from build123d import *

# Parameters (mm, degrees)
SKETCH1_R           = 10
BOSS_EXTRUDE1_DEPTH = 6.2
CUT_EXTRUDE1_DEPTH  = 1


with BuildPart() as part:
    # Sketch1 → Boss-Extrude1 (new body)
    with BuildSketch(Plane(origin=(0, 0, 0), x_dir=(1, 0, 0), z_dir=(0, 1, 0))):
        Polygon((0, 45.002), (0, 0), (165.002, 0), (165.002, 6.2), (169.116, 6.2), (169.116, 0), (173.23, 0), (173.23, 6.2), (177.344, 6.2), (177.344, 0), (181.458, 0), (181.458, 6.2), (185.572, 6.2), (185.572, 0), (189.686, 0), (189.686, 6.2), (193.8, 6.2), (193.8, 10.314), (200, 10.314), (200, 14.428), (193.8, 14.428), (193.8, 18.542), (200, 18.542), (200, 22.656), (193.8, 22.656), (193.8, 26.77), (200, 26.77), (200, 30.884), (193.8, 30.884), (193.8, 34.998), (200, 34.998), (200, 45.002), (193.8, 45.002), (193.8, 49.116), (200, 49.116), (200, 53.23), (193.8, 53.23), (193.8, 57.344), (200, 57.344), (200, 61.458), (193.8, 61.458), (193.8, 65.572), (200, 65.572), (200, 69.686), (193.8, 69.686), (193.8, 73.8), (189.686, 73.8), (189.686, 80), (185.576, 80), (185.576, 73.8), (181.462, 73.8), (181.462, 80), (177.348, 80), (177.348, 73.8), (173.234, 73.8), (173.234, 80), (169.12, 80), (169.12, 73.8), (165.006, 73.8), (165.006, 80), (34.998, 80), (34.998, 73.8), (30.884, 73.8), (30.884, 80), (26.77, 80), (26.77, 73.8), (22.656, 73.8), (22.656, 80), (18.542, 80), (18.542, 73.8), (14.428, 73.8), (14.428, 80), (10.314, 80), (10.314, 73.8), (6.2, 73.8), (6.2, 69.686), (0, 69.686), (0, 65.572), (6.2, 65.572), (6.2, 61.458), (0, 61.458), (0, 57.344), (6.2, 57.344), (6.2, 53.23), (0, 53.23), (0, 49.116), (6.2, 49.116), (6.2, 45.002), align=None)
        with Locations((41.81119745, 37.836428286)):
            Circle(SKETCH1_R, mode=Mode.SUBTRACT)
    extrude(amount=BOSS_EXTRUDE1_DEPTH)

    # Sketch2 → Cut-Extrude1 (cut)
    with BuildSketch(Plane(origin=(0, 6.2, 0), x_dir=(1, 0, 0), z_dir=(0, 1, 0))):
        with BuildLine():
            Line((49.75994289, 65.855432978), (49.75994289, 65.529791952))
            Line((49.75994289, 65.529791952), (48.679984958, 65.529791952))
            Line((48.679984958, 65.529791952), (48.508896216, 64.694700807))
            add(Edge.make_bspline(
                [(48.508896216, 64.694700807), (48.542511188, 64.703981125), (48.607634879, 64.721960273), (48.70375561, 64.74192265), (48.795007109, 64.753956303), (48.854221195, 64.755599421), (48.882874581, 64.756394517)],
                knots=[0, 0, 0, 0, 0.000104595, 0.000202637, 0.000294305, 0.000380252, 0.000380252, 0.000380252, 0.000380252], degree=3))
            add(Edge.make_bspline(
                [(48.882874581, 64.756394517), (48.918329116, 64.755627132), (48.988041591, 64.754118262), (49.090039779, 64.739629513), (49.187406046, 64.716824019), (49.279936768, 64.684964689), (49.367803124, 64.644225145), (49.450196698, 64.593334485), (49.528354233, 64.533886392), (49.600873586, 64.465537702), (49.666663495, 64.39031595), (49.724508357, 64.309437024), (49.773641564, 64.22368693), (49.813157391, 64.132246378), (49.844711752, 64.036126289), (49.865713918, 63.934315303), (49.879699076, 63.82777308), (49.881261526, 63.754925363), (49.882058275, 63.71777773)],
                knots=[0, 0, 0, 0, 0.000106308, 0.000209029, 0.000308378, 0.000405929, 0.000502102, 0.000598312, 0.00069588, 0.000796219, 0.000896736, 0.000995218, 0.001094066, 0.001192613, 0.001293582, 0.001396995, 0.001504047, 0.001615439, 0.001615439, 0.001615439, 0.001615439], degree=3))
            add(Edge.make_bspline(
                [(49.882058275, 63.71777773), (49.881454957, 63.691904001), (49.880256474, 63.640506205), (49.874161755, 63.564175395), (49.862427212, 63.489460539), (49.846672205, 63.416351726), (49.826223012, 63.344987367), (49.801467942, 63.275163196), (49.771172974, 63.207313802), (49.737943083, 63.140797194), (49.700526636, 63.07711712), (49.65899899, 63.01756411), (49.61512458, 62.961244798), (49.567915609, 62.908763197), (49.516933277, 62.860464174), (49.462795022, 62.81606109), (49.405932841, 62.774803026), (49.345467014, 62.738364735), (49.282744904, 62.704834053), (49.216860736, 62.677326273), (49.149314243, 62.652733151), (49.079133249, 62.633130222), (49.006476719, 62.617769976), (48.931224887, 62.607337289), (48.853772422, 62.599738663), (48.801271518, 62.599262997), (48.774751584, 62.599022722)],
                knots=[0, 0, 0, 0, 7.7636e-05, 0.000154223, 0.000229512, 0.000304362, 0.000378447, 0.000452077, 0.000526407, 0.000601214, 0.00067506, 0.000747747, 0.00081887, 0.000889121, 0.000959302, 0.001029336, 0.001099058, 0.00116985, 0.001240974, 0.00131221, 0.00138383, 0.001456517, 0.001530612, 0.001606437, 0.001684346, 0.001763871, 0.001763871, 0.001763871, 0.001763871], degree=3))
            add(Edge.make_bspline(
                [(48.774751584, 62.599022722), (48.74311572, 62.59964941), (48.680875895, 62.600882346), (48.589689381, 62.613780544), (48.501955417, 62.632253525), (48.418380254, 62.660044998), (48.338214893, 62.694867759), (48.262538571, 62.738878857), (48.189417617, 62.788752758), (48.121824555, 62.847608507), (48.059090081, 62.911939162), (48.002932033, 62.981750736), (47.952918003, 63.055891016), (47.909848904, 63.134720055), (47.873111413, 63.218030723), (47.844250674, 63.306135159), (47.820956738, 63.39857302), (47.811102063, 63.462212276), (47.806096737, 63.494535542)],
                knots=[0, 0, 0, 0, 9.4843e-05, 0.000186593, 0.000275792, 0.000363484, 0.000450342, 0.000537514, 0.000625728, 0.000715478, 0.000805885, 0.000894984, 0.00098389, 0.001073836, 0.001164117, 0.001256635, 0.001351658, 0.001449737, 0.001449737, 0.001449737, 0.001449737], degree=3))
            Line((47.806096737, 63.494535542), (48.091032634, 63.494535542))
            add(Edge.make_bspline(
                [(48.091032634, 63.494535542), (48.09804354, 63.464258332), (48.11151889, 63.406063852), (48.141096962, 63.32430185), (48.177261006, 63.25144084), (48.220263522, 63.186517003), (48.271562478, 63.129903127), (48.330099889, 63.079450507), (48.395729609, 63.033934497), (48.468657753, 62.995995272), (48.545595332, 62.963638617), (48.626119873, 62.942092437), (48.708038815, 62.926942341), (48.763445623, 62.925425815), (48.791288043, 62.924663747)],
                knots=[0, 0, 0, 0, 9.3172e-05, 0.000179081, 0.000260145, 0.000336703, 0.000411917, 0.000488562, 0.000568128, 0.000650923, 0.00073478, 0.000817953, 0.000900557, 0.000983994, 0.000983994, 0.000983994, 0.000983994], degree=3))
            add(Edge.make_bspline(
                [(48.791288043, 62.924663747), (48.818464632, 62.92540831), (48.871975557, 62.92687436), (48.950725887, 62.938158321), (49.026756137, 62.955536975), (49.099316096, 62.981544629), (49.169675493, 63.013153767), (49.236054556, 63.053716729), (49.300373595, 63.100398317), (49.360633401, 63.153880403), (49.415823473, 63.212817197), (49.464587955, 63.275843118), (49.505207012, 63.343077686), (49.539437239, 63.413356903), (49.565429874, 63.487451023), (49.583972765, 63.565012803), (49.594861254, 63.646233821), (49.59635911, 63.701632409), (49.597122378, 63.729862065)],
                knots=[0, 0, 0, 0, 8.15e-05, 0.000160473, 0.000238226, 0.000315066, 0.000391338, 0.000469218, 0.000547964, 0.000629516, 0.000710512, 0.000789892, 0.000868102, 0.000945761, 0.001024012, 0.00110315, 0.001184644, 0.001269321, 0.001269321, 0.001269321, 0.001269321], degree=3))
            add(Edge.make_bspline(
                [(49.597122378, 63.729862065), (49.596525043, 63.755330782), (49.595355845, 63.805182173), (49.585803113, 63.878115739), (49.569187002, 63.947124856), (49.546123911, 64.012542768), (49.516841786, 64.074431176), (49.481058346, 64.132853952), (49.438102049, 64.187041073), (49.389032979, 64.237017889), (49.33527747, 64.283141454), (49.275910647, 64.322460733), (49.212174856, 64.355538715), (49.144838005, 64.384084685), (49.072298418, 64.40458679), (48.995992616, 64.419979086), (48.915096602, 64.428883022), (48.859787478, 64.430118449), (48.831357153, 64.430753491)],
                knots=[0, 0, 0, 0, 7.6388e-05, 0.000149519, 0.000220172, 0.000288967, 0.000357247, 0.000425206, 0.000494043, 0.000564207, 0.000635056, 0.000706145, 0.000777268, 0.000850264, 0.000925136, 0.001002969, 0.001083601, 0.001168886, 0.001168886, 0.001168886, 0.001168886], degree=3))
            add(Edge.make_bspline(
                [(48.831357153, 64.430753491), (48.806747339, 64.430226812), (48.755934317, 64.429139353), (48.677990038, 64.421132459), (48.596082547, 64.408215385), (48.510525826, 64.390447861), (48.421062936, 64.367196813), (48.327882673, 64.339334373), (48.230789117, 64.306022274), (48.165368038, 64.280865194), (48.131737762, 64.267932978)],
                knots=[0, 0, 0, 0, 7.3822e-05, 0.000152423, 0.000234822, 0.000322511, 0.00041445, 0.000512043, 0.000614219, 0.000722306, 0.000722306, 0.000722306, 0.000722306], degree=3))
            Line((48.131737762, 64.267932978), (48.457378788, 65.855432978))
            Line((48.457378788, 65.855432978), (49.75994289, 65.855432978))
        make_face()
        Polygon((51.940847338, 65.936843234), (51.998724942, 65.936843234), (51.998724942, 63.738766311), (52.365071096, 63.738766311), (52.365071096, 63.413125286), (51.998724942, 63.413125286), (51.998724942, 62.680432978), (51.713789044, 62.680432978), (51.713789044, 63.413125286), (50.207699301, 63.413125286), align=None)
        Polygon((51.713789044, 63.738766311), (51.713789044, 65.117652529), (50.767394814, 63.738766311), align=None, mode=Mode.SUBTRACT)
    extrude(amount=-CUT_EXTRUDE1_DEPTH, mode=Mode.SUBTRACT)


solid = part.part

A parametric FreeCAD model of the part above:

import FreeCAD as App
import Part
import Sketcher
from FreeCAD import Vector
Q = App.Units.Quantity

doc = App.newDocument("Part")
body = doc.addObject("PartDesign::Body", "Body")

# Sketch on XZ plane
sketch1 = doc.addObject("Sketcher::SketchObject", "Sketch")
body.addObject(sketch1)
sketch1.AttachmentSupport = (doc.XZ_Plane, [""])
sketch1.MapMode = "FlatFace"
sketch1.addGeometry(Part.LineSegment(Vector(0, -45.002, 0), Vector(0, 0, 0)), False)
sketch1.addGeometry(Part.LineSegment(Vector(0, 0, 0), Vector(165.002, 0, 0)), False)
sketch1.addGeometry(Part.LineSegment(Vector(165.002, 0, 0), Vector(165.002, -6.2, 0)), False)
sketch1.addGeometry(Part.LineSegment(Vector(165.002, -6.2, 0), Vector(169.116, -6.2, 0)), False)
sketch1.addGeometry(Part.LineSegment(Vector(169.116, -6.2, 0), Vector(169.116, 0, 0)), False)
sketch1.addGeometry(Part.LineSegment(Vector(169.116, 0, 0), Vector(173.23, 0, 0)), False)
sketch1.addGeometry(Part.LineSegment(Vector(173.23, 0, 0), Vector(173.23, -6.2, 0)), False)
sketch1.addGeometry(Part.LineSegment(Vector(173.23, -6.2, 0), Vector(177.344, -6.2, 0)), False)
sketch1.addGeometry(Part.LineSegment(Vector(177.344, -6.2, 0), Vector(177.344, 0, 0)), False)
sketch1.addGeometry(Part.LineSegment(Vector(177.344, 0, 0), Vector(181.458, 0, 0)), False)
sketch1.addGeometry(Part.LineSegment(Vector(181.458, 0, 0), Vector(181.458, -6.2, 0)), False)
sketch1.addGeometry(Part.LineSegment(Vector(181.458, -6.2, 0), Vector(185.572, -6.2, 0)), False)
sketch1.addGeometry(Part.LineSegment(Vector(185.572, -6.2, 0), Vector(185.572, 0, 0)), False)
sketch1.addGeometry(Part.LineSegment(Vector(185.572, 0, 0), Vector(189.686, 0, 0)), False)
sketch1.addGeometry(Part.LineSegment(Vector(189.686, 0, 0), Vector(189.686, -6.2, 0)), False)
sketch1.addGeometry(Part.LineSegment(Vector(189.686, -6.2, 0), Vector(193.8, -6.2, 0)), False)
sketch1.addGeometry(Part.LineSegment(Vector(193.8, -6.2, 0), Vector(193.8, -10.314, 0)), False)
sketch1.addGeometry(Part.LineSegment(Vector(193.8, -10.314, 0), Vector(200, -10.314, 0)), False)
sketch1.addGeometry(Part.LineSegment(Vector(200, -10.314, 0), Vector(200, -14.428, 0)), False)
sketch1.addGeometry(Part.LineSegment(Vector(200, -14.428, 0), Vector(193.8, -14.428, 0)), False)
sketch1.addGeometry(Part.LineSegment(Vector(193.8, -14.428, 0), Vector(193.8, -18.542, 0)), False)
sketch1.addGeometry(Part.LineSegment(Vector(193.8, -18.542, 0), Vector(200, -18.542, 0)), False)
sketch1.addGeometry(Part.LineSegment(Vector(200, -18.542, 0), Vector(200, -22.656, 0)), False)
sketch1.addGeometry(Part.LineSegment(Vector(200, -22.656, 0), Vector(193.8, -22.656, 0)), False)
sketch1.addGeometry(Part.LineSegment(Vector(193.8, -22.656, 0), Vector(193.8, -26.77, 0)), False)
sketch1.addGeometry(Part.LineSegment(Vector(193.8, -26.77, 0), Vector(200, -26.77, 0)), False)
sketch1.addGeometry(Part.LineSegment(Vector(200, -26.77, 0), Vector(200, -30.884, 0)), False)
sketch1.addGeometry(Part.LineSegment(Vector(200, -30.884, 0), Vector(193.8, -30.884, 0)), False)
sketch1.addGeometry(Part.LineSegment(Vector(193.8, -30.884, 0), Vector(193.8, -34.998, 0)), False)
sketch1.addGeometry(Part.LineSegment(Vector(193.8, -34.998, 0), Vector(200, -34.998, 0)), False)
sketch1.addGeometry(Part.LineSegment(Vector(200, -34.998, 0), Vector(200, -45.002, 0)), False)
sketch1.addGeometry(Part.LineSegment(Vector(200, -45.002, 0), Vector(193.8, -45.002, 0)), False)
sketch1.addGeometry(Part.LineSegment(Vector(193.8, -45.002, 0), Vector(193.8, -49.116, 0)), False)
sketch1.addGeometry(Part.LineSegment(Vector(193.8, -49.116, 0), Vector(200, -49.116, 0)), False)
sketch1.addGeometry(Part.LineSegment(Vector(200, -49.116, 0), Vector(200, -53.23, 0)), False)
sketch1.addGeometry(Part.LineSegment(Vector(200, -53.23, 0), Vector(193.8, -53.23, 0)), False)
sketch1.addGeometry(Part.LineSegment(Vector(193.8, -53.23, 0), Vector(193.8, -57.344, 0)), False)
sketch1.addGeometry(Part.LineSegment(Vector(193.8, -57.344, 0), Vector(200, -57.344, 0)), False)
sketch1.addGeometry(Part.LineSegment(Vector(200, -57.344, 0), Vector(200, -61.458, 0)), False)
sketch1.addGeometry(Part.LineSegment(Vector(200, -61.458, 0), Vector(193.8, -61.458, 0)), False)
sketch1.addGeometry(Part.LineSegment(Vector(193.8, -61.458, 0), Vector(193.8, -65.572, 0)), False)
sketch1.addGeometry(Part.LineSegment(Vector(193.8, -65.572, 0), Vector(200, -65.572, 0)), False)
sketch1.addGeometry(Part.LineSegment(Vector(200, -65.572, 0), Vector(200, -69.686, 0)), False)
sketch1.addGeometry(Part.LineSegment(Vector(200, -69.686, 0), Vector(193.8, -69.686, 0)), False)
sketch1.addGeometry(Part.LineSegment(Vector(193.8, -69.686, 0), Vector(193.8, -73.8, 0)), False)
sketch1.addGeometry(Part.LineSegment(Vector(193.8, -73.8, 0), Vector(189.686, -73.8, 0)), False)
sketch1.addGeometry(Part.LineSegment(Vector(189.686, -73.8, 0), Vector(189.686, -80, 0)), False)
sketch1.addGeometry(Part.LineSegment(Vector(189.686, -80, 0), Vector(185.576, -80, 0)), False)
sketch1.addGeometry(Part.LineSegment(Vector(185.576, -80, 0), Vector(185.576, -73.8, 0)), False)
sketch1.addGeometry(Part.LineSegment(Vector(185.576, -73.8, 0), Vector(181.462, -73.8, 0)), False)
sketch1.addGeometry(Part.LineSegment(Vector(181.462, -73.8, 0), Vector(181.462, -80, 0)), False)
sketch1.addGeometry(Part.LineSegment(Vector(181.462, -80, 0), Vector(177.348, -80, 0)), False)
sketch1.addGeometry(Part.LineSegment(Vector(177.348, -80, 0), Vector(177.348, -73.8, 0)), False)
sketch1.addGeometry(Part.LineSegment(Vector(177.348, -73.8, 0), Vector(173.234, -73.8, 0)), False)
sketch1.addGeometry(Part.LineSegment(Vector(173.234, -73.8, 0), Vector(173.234, -80, 0)), False)
sketch1.addGeometry(Part.LineSegment(Vector(173.234, -80, 0), Vector(169.12, -80, 0)), False)
sketch1.addGeometry(Part.LineSegment(Vector(169.12, -80, 0), Vector(169.12, -73.8, 0)), False)
sketch1.addGeometry(Part.LineSegment(Vector(169.12, -73.8, 0), Vector(165.006, -73.8, 0)), False)
sketch1.addGeometry(Part.LineSegment(Vector(165.006, -73.8, 0), Vector(165.006, -80, 0)), False)
sketch1.addGeometry(Part.LineSegment(Vector(165.006, -80, 0), Vector(34.998, -80, 0)), False)
sketch1.addGeometry(Part.LineSegment(Vector(34.998, -80, 0), Vector(34.998, -73.8, 0)), False)
sketch1.addGeometry(Part.LineSegment(Vector(34.998, -73.8, 0), Vector(30.884, -73.8, 0)), False)
sketch1.addGeometry(Part.LineSegment(Vector(30.884, -73.8, 0), Vector(30.884, -80, 0)), False)
sketch1.addGeometry(Part.LineSegment(Vector(30.884, -80, 0), Vector(26.77, -80, 0)), False)
sketch1.addGeometry(Part.LineSegment(Vector(26.77, -80, 0), Vector(26.77, -73.8, 0)), False)
sketch1.addGeometry(Part.LineSegment(Vector(26.77, -73.8, 0), Vector(22.656, -73.8, 0)), False)
sketch1.addGeometry(Part.LineSegment(Vector(22.656, -73.8, 0), Vector(22.656, -80, 0)), False)
sketch1.addGeometry(Part.LineSegment(Vector(22.656, -80, 0), Vector(18.542, -80, 0)), False)
sketch1.addGeometry(Part.LineSegment(Vector(18.542, -80, 0), Vector(18.542, -73.8, 0)), False)
sketch1.addGeometry(Part.LineSegment(Vector(18.542, -73.8, 0), Vector(14.428, -73.8, 0)), False)
sketch1.addGeometry(Part.LineSegment(Vector(14.428, -73.8, 0), Vector(14.428, -80, 0)), False)
sketch1.addGeometry(Part.LineSegment(Vector(14.428, -80, 0), Vector(10.314, -80, 0)), False)
sketch1.addGeometry(Part.LineSegment(Vector(10.314, -80, 0), Vector(10.314, -73.8, 0)), False)
sketch1.addGeometry(Part.LineSegment(Vector(10.314, -73.8, 0), Vector(6.2, -73.8, 0)), False)
sketch1.addGeometry(Part.LineSegment(Vector(6.2, -73.8, 0), Vector(6.2, -69.686, 0)), False)
sketch1.addGeometry(Part.LineSegment(Vector(6.2, -69.686, 0), Vector(0, -69.686, 0)), False)
sketch1.addGeometry(Part.LineSegment(Vector(0, -69.686, 0), Vector(0, -65.572, 0)), False)
sketch1.addGeometry(Part.LineSegment(Vector(0, -65.572, 0), Vector(6.2, -65.572, 0)), False)
sketch1.addGeometry(Part.LineSegment(Vector(6.2, -65.572, 0), Vector(6.2, -61.458, 0)), False)
sketch1.addGeometry(Part.LineSegment(Vector(6.2, -61.458, 0), Vector(0, -61.458, 0)), False)
sketch1.addGeometry(Part.LineSegment(Vector(0, -61.458, 0), Vector(0, -57.344, 0)), False)
sketch1.addGeometry(Part.LineSegment(Vector(0, -57.344, 0), Vector(6.2, -57.344, 0)), False)
sketch1.addGeometry(Part.LineSegment(Vector(6.2, -57.344, 0), Vector(6.2, -53.23, 0)), False)
sketch1.addGeometry(Part.LineSegment(Vector(6.2, -53.23, 0), Vector(0, -53.23, 0)), False)
sketch1.addGeometry(Part.LineSegment(Vector(0, -53.23, 0), Vector(0, -49.116, 0)), False)
sketch1.addGeometry(Part.LineSegment(Vector(0, -49.116, 0), Vector(6.2, -49.116, 0)), False)
sketch1.addGeometry(Part.LineSegment(Vector(6.2, -49.116, 0), Vector(6.2, -45.002, 0)), False)
sketch1.addGeometry(Part.LineSegment(Vector(6.2, -45.002, 0), Vector(0, -45.002, 0)), False)
sketch1.addGeometry(Part.Circle(Vector(41.811197, -37.836428, 0), Vector(0, 0, 1), 10), False)
sketch1.addConstraint(Sketcher.Constraint("Coincident", 0, 2, 1, 1))
sketch1.addConstraint(Sketcher.Constraint("Coincident", 1, 2, 2, 1))
sketch1.addConstraint(Sketcher.Constraint("Coincident", 2, 2, 3, 1))
sketch1.addConstraint(Sketcher.Constraint("Coincident", 3, 2, 4, 1))
sketch1.addConstraint(Sketcher.Constraint("Coincident", 4, 2, 5, 1))
sketch1.addConstraint(Sketcher.Constraint("Coincident", 5, 2, 6, 1))
sketch1.addConstraint(Sketcher.Constraint("Coincident", 6, 2, 7, 1))
sketch1.addConstraint(Sketcher.Constraint("Coincident", 7, 2, 8, 1))
sketch1.addConstraint(Sketcher.Constraint("Coincident", 8, 2, 9, 1))
sketch1.addConstraint(Sketcher.Constraint("Coincident", 9, 2, 10, 1))
sketch1.addConstraint(Sketcher.Constraint("Coincident", 10, 2, 11, 1))
sketch1.addConstraint(Sketcher.Constraint("Coincident", 11, 2, 12, 1))
sketch1.addConstraint(Sketcher.Constraint("Coincident", 12, 2, 13, 1))
sketch1.addConstraint(Sketcher.Constraint("Coincident", 13, 2, 14, 1))
sketch1.addConstraint(Sketcher.Constraint("Coincident", 14, 2, 15, 1))
sketch1.addConstraint(Sketcher.Constraint("Coincident", 15, 2, 16, 1))
sketch1.addConstraint(Sketcher.Constraint("Coincident", 16, 2, 17, 1))
sketch1.addConstraint(Sketcher.Constraint("Coincident", 17, 2, 18, 1))
sketch1.addConstraint(Sketcher.Constraint("Coincident", 18, 2, 19, 1))
sketch1.addConstraint(Sketcher.Constraint("Coincident", 19, 2, 20, 1))
sketch1.addConstraint(Sketcher.Constraint("Coincident", 20, 2, 21, 1))
sketch1.addConstraint(Sketcher.Constraint("Coincident", 21, 2, 22, 1))
sketch1.addConstraint(Sketcher.Constraint("Coincident", 22, 2, 23, 1))
sketch1.addConstraint(Sketcher.Constraint("Coincident", 23, 2, 24, 1))
sketch1.addConstraint(Sketcher.Constraint("Coincident", 24, 2, 25, 1))
sketch1.addConstraint(Sketcher.Constraint("Coincident", 25, 2, 26, 1))
sketch1.addConstraint(Sketcher.Constraint("Coincident", 26, 2, 27, 1))
sketch1.addConstraint(Sketcher.Constraint("Coincident", 27, 2, 28, 1))
sketch1.addConstraint(Sketcher.Constraint("Coincident", 28, 2, 29, 1))
sketch1.addConstraint(Sketcher.Constraint("Coincident", 29, 2, 30, 1))
sketch1.addConstraint(Sketcher.Constraint("Coincident", 30, 2, 31, 1))
sketch1.addConstraint(Sketcher.Constraint("Coincident", 31, 2, 32, 1))
sketch1.addConstraint(Sketcher.Constraint("Coincident", 32, 2, 33, 1))
sketch1.addConstraint(Sketcher.Constraint("Coincident", 33, 2, 34, 1))
sketch1.addConstraint(Sketcher.Constraint("Coincident", 34, 2, 35, 1))
sketch1.addConstraint(Sketcher.Constraint("Coincident", 35, 2, 36, 1))
sketch1.addConstraint(Sketcher.Constraint("Coincident", 36, 2, 37, 1))
sketch1.addConstraint(Sketcher.Constraint("Coincident", 37, 2, 38, 1))
sketch1.addConstraint(Sketcher.Constraint("Coincident", 38, 2, 39, 1))
sketch1.addConstraint(Sketcher.Constraint("Coincident", 39, 2, 40, 1))
sketch1.addConstraint(Sketcher.Constraint("Coincident", 40, 2, 41, 1))
sketch1.addConstraint(Sketcher.Constraint("Coincident", 41, 2, 42, 1))
sketch1.addConstraint(Sketcher.Constraint("Coincident", 42, 2, 43, 1))
sketch1.addConstraint(Sketcher.Constraint("Coincident", 43, 2, 44, 1))
sketch1.addConstraint(Sketcher.Constraint("Coincident", 44, 2, 45, 1))
sketch1.addConstraint(Sketcher.Constraint("Coincident", 45, 2, 46, 1))
sketch1.addConstraint(Sketcher.Constraint("Coincident", 46, 2, 47, 1))
sketch1.addConstraint(Sketcher.Constraint("Coincident", 47, 2, 48, 1))
sketch1.addConstraint(Sketcher.Constraint("Coincident", 48, 2, 49, 1))
sketch1.addConstraint(Sketcher.Constraint("Coincident", 49, 2, 50, 1))
sketch1.addConstraint(Sketcher.Constraint("Coincident", 50, 2, 51, 1))
sketch1.addConstraint(Sketcher.Constraint("Coincident", 51, 2, 52, 1))
sketch1.addConstraint(Sketcher.Constraint("Coincident", 52, 2, 53, 1))
sketch1.addConstraint(Sketcher.Constraint("Coincident", 53, 2, 54, 1))
sketch1.addConstraint(Sketcher.Constraint("Coincident", 54, 2, 55, 1))
sketch1.addConstraint(Sketcher.Constraint("Coincident", 55, 2, 56, 1))
sketch1.addConstraint(Sketcher.Constraint("Coincident", 56, 2, 57, 1))
sketch1.addConstraint(Sketcher.Constraint("Coincident", 57, 2, 58, 1))
sketch1.addConstraint(Sketcher.Constraint("Coincident", 58, 2, 59, 1))
sketch1.addConstraint(Sketcher.Constraint("Coincident", 59, 2, 60, 1))
sketch1.addConstraint(Sketcher.Constraint("Coincident", 60, 2, 61, 1))
sketch1.addConstraint(Sketcher.Constraint("Coincident", 61, 2, 62, 1))
sketch1.addConstraint(Sketcher.Constraint("Coincident", 62, 2, 63, 1))
sketch1.addConstraint(Sketcher.Constraint("Coincident", 63, 2, 64, 1))
sketch1.addConstraint(Sketcher.Constraint("Coincident", 64, 2, 65, 1))
sketch1.addConstraint(Sketcher.Constraint("Coincident", 65, 2, 66, 1))
sketch1.addConstraint(Sketcher.Constraint("Coincident", 66, 2, 67, 1))
sketch1.addConstraint(Sketcher.Constraint("Coincident", 67, 2, 68, 1))
sketch1.addConstraint(Sketcher.Constraint("Coincident", 68, 2, 69, 1))
sketch1.addConstraint(Sketcher.Constraint("Coincident", 69, 2, 70, 1))
sketch1.addConstraint(Sketcher.Constraint("Coincident", 70, 2, 71, 1))
sketch1.addConstraint(Sketcher.Constraint("Coincident", 71, 2, 72, 1))
sketch1.addConstraint(Sketcher.Constraint("Coincident", 72, 2, 73, 1))
sketch1.addConstraint(Sketcher.Constraint("Coincident", 73, 2, 74, 1))
sketch1.addConstraint(Sketcher.Constraint("Coincident", 74, 2, 75, 1))
sketch1.addConstraint(Sketcher.Constraint("Coincident", 75, 2, 76, 1))
sketch1.addConstraint(Sketcher.Constraint("Coincident", 76, 2, 77, 1))
sketch1.addConstraint(Sketcher.Constraint("Coincident", 77, 2, 78, 1))
sketch1.addConstraint(Sketcher.Constraint("Coincident", 78, 2, 79, 1))
sketch1.addConstraint(Sketcher.Constraint("Coincident", 79, 2, 80, 1))
sketch1.addConstraint(Sketcher.Constraint("Coincident", 80, 2, 81, 1))
sketch1.addConstraint(Sketcher.Constraint("Coincident", 81, 2, 82, 1))
sketch1.addConstraint(Sketcher.Constraint("Coincident", 82, 2, 83, 1))
sketch1.addConstraint(Sketcher.Constraint("Coincident", 83, 2, 84, 1))
sketch1.addConstraint(Sketcher.Constraint("Coincident", 84, 2, 85, 1))
sketch1.addConstraint(Sketcher.Constraint("Coincident", 85, 2, 86, 1))
sketch1.addConstraint(Sketcher.Constraint("Coincident", 86, 2, 87, 1))
sketch1.addConstraint(Sketcher.Constraint("Coincident", 87, 2, 0, 1))
sketch1.addConstraint(Sketcher.Constraint("Vertical", 0))
sketch1.addConstraint(Sketcher.Constraint("Horizontal", 1))
sketch1.addConstraint(Sketcher.Constraint("Vertical", 2))
sketch1.addConstraint(Sketcher.Constraint("Horizontal", 3))
sketch1.addConstraint(Sketcher.Constraint("Vertical", 4))
sketch1.addConstraint(Sketcher.Constraint("Horizontal", 5))
sketch1.addConstraint(Sketcher.Constraint("Vertical", 6))
sketch1.addConstraint(Sketcher.Constraint("Horizontal", 7))
sketch1.addConstraint(Sketcher.Constraint("Vertical", 8))
sketch1.addConstraint(Sketcher.Constraint("Horizontal", 9))
sketch1.addConstraint(Sketcher.Constraint("Vertical", 10))
sketch1.addConstraint(Sketcher.Constraint("Horizontal", 11))
sketch1.addConstraint(Sketcher.Constraint("Vertical", 12))
sketch1.addConstraint(Sketcher.Constraint("Horizontal", 13))
sketch1.addConstraint(Sketcher.Constraint("Vertical", 14))
sketch1.addConstraint(Sketcher.Constraint("Horizontal", 15))
sketch1.addConstraint(Sketcher.Constraint("Vertical", 16))
sketch1.addConstraint(Sketcher.Constraint("Horizontal", 17))
sketch1.addConstraint(Sketcher.Constraint("Vertical", 18))
sketch1.addConstraint(Sketcher.Constraint("Horizontal", 19))
sketch1.addConstraint(Sketcher.Constraint("Vertical", 20))
sketch1.addConstraint(Sketcher.Constraint("Horizontal", 21))
sketch1.addConstraint(Sketcher.Constraint("Vertical", 22))
sketch1.addConstraint(Sketcher.Constraint("Horizontal", 23))
sketch1.addConstraint(Sketcher.Constraint("Vertical", 24))
sketch1.addConstraint(Sketcher.Constraint("Horizontal", 25))
sketch1.addConstraint(Sketcher.Constraint("Vertical", 26))
sketch1.addConstraint(Sketcher.Constraint("Horizontal", 27))
sketch1.addConstraint(Sketcher.Constraint("Vertical", 28))
sketch1.addConstraint(Sketcher.Constraint("Horizontal", 29))
sketch1.addConstraint(Sketcher.Constraint("Vertical", 30))
sketch1.addConstraint(Sketcher.Constraint("Horizontal", 31))
sketch1.addConstraint(Sketcher.Constraint("Vertical", 32))
sketch1.addConstraint(Sketcher.Constraint("Horizontal", 33))
sketch1.addConstraint(Sketcher.Constraint("Vertical", 34))
sketch1.addConstraint(Sketcher.Constraint("Horizontal", 35))
sketch1.addConstraint(Sketcher.Constraint("Vertical", 36))
sketch1.addConstraint(Sketcher.Constraint("Horizontal", 37))
sketch1.addConstraint(Sketcher.Constraint("Vertical", 38))
sketch1.addConstraint(Sketcher.Constraint("Horizontal", 39))
sketch1.addConstraint(Sketcher.Constraint("Vertical", 40))
sketch1.addConstraint(Sketcher.Constraint("Horizontal", 41))
sketch1.addConstraint(Sketcher.Constraint("Vertical", 42))
sketch1.addConstraint(Sketcher.Constraint("Horizontal", 43))
sketch1.addConstraint(Sketcher.Constraint("Vertical", 44))
sketch1.addConstraint(Sketcher.Constraint("Horizontal", 45))
sketch1.addConstraint(Sketcher.Constraint("Vertical", 46))
sketch1.addConstraint(Sketcher.Constraint("Horizontal", 47))
sketch1.addConstraint(Sketcher.Constraint("Vertical", 48))
sketch1.addConstraint(Sketcher.Constraint("Horizontal", 49))
sketch1.addConstraint(Sketcher.Constraint("Vertical", 50))
sketch1.addConstraint(Sketcher.Constraint("Horizontal", 51))
sketch1.addConstraint(Sketcher.Constraint("Vertical", 52))
sketch1.addConstraint(Sketcher.Constraint("Horizontal", 53))
sketch1.addConstraint(Sketcher.Constraint("Vertical", 54))
sketch1.addConstraint(Sketcher.Constraint("Horizontal", 55))
sketch1.addConstraint(Sketcher.Constraint("Vertical", 56))
sketch1.addConstraint(Sketcher.Constraint("Horizontal", 57))
sketch1.addConstraint(Sketcher.Constraint("Vertical", 58))
sketch1.addConstraint(Sketcher.Constraint("Horizontal", 59))
sketch1.addConstraint(Sketcher.Constraint("Vertical", 60))
sketch1.addConstraint(Sketcher.Constraint("Horizontal", 61))
sketch1.addConstraint(Sketcher.Constraint("Vertical", 62))
sketch1.addConstraint(Sketcher.Constraint("Horizontal", 63))
sketch1.addConstraint(Sketcher.Constraint("Vertical", 64))
sketch1.addConstraint(Sketcher.Constraint("Horizontal", 65))
sketch1.addConstraint(Sketcher.Constraint("Vertical", 66))
sketch1.addConstraint(Sketcher.Constraint("Horizontal", 67))
sketch1.addConstraint(Sketcher.Constraint("Vertical", 68))
sketch1.addConstraint(Sketcher.Constraint("Horizontal", 69))
sketch1.addConstraint(Sketcher.Constraint("Vertical", 70))
sketch1.addConstraint(Sketcher.Constraint("Horizontal", 71))
sketch1.addConstraint(Sketcher.Constraint("Vertical", 72))
sketch1.addConstraint(Sketcher.Constraint("Horizontal", 73))
sketch1.addConstraint(Sketcher.Constraint("Vertical", 74))
sketch1.addConstraint(Sketcher.Constraint("Horizontal", 75))
sketch1.addConstraint(Sketcher.Constraint("Vertical", 76))
sketch1.addConstraint(Sketcher.Constraint("Horizontal", 77))
sketch1.addConstraint(Sketcher.Constraint("Vertical", 78))
sketch1.addConstraint(Sketcher.Constraint("Horizontal", 79))
sketch1.addConstraint(Sketcher.Constraint("Vertical", 80))
sketch1.addConstraint(Sketcher.Constraint("Horizontal", 81))
sketch1.addConstraint(Sketcher.Constraint("Vertical", 82))
sketch1.addConstraint(Sketcher.Constraint("Horizontal", 83))
sketch1.addConstraint(Sketcher.Constraint("Vertical", 84))
sketch1.addConstraint(Sketcher.Constraint("Horizontal", 85))
sketch1.addConstraint(Sketcher.Constraint("Vertical", 86))
sketch1.addConstraint(Sketcher.Constraint("Horizontal", 87))
sketch1.addConstraint(Sketcher.Constraint("Coincident", 0, 2, -1, 1))
sketch1.addConstraint(Sketcher.Constraint("PointOnObject", 4, 2, -1))
sketch1.addConstraint(Sketcher.Constraint("PointOnObject", 8, 2, -1))
sketch1.addConstraint(Sketcher.Constraint("PointOnObject", 12, 2, -1))
sketch1.addConstraint(Sketcher.Constraint("PointOnObject", 75, 2, -2))
sketch1.addConstraint(Sketcher.Constraint("PointOnObject", 79, 2, -2))
sketch1.addConstraint(Sketcher.Constraint("PointOnObject", 83, 2, -2))
sketch1.addConstraint(Sketcher.Constraint("Horizontal", 3, 2, 6, 2))
sketch1.addConstraint(Sketcher.Constraint("Horizontal", 7, 2, 10, 2))
sketch1.addConstraint(Sketcher.Constraint("Horizontal", 11, 2, 14, 2))
sketch1.addConstraint(Sketcher.Constraint("Horizontal", 45, 2, 48, 2))
sketch1.addConstraint(Sketcher.Constraint("Horizontal", 47, 2, 50, 2))
sketch1.addConstraint(Sketcher.Constraint("Horizontal", 49, 2, 52, 2))
sketch1.addConstraint(Sketcher.Constraint("Horizontal", 51, 2, 54, 2))
sketch1.addConstraint(Sketcher.Constraint("Horizontal", 53, 2, 56, 2))
sketch1.addConstraint(Sketcher.Constraint("Horizontal", 55, 2, 58, 2))
sketch1.addConstraint(Sketcher.Constraint("Horizontal", 57, 2, 60, 2))
sketch1.addConstraint(Sketcher.Constraint("Horizontal", 59, 2, 62, 2))
sketch1.addConstraint(Sketcher.Constraint("Horizontal", 61, 2, 64, 2))
sketch1.addConstraint(Sketcher.Constraint("Horizontal", 63, 2, 66, 2))
sketch1.addConstraint(Sketcher.Constraint("Horizontal", 65, 2, 68, 2))
sketch1.addConstraint(Sketcher.Constraint("Horizontal", 67, 2, 70, 2))
sketch1.addConstraint(Sketcher.Constraint("Horizontal", 69, 2, 72, 2))
sketch1.addConstraint(Sketcher.Constraint("Horizontal", 43, 2, 74, 2))
sketch1.addConstraint(Sketcher.Constraint("Horizontal", 41, 2, 76, 2))
sketch1.addConstraint(Sketcher.Constraint("Horizontal", 39, 2, 78, 2))
sketch1.addConstraint(Sketcher.Constraint("Horizontal", 37, 2, 80, 2))
sketch1.addConstraint(Sketcher.Constraint("Horizontal", 35, 2, 82, 2))
sketch1.addConstraint(Sketcher.Constraint("Horizontal", 33, 2, 84, 2))
sketch1.addConstraint(Sketcher.Constraint("Horizontal", 31, 2, 86, 2))
sketch1.addConstraint(Sketcher.Constraint("Vertical", 16, 2, 19, 2))
sketch1.addConstraint(Sketcher.Constraint("Vertical", 18, 2, 21, 2))
sketch1.addConstraint(Sketcher.Constraint("Vertical", 20, 2, 23, 2))
sketch1.addConstraint(Sketcher.Constraint("Vertical", 22, 2, 25, 2))
sketch1.addConstraint(Sketcher.Constraint("Vertical", 24, 2, 27, 2))
sketch1.addConstraint(Sketcher.Constraint("Vertical", 26, 2, 29, 2))
sketch1.addConstraint(Sketcher.Constraint("Vertical", 28, 2, 31, 2))
sketch1.addConstraint(Sketcher.Constraint("Vertical", 30, 2, 33, 2))
sketch1.addConstraint(Sketcher.Constraint("Vertical", 32, 2, 35, 2))
sketch1.addConstraint(Sketcher.Constraint("Vertical", 34, 2, 37, 2))
sketch1.addConstraint(Sketcher.Constraint("Vertical", 36, 2, 39, 2))
sketch1.addConstraint(Sketcher.Constraint("Vertical", 38, 2, 41, 2))
sketch1.addConstraint(Sketcher.Constraint("Vertical", 40, 2, 43, 2))
sketch1.addConstraint(Sketcher.Constraint("Vertical", 14, 2, 45, 2))
sketch1.addConstraint(Sketcher.Constraint("Vertical", 74, 2, 77, 2))
sketch1.addConstraint(Sketcher.Constraint("Vertical", 78, 2, 81, 2))
sketch1.addConstraint(Sketcher.Constraint("Vertical", 82, 2, 85, 2))
sketch1.addConstraint(Sketcher.Constraint("Equal", 3, 5))
sketch1.addConstraint(Sketcher.Constraint("Equal", 5, 7))
sketch1.addConstraint(Sketcher.Constraint("Equal", 7, 9))
sketch1.addConstraint(Sketcher.Constraint("Equal", 9, 11))
sketch1.addConstraint(Sketcher.Constraint("Equal", 11, 13))
sketch1.addConstraint(Sketcher.Constraint("Equal", 13, 15))
sketch1.addConstraint(Sketcher.Constraint("Equal", 45, 49))
sketch1.addConstraint(Sketcher.Constraint("Equal", 49, 51))
sketch1.addConstraint(Sketcher.Constraint("Equal", 51, 53))
sketch1.addConstraint(Sketcher.Constraint("Equal", 53, 55))
sketch1.addConstraint(Sketcher.Constraint("Equal", 55, 57))
sketch1.addConstraint(Sketcher.Constraint("Equal", 57, 61))
sketch1.addConstraint(Sketcher.Constraint("Equal", 61, 63))
sketch1.addConstraint(Sketcher.Constraint("Equal", 63, 65))
sketch1.addConstraint(Sketcher.Constraint("Equal", 65, 67))
sketch1.addConstraint(Sketcher.Constraint("Equal", 67, 69))
sketch1.addConstraint(Sketcher.Constraint("Equal", 69, 71))
sketch1.addConstraint(Sketcher.Constraint("Equal", 71, 73))
sketch1.addConstraint(Sketcher.Constraint("Equal", 43, 75))
sketch1.addConstraint(Sketcher.Constraint("Equal", 87, 2))
sketch1.addConstraint(Sketcher.Constraint("Equal", 73, 16))
sketch1.addConstraint(Sketcher.Constraint("Equal", 16, 18))
sketch1.addConstraint(Sketcher.Constraint("Equal", 18, 20))
sketch1.addConstraint(Sketcher.Constraint("Equal", 20, 22))
sketch1.addConstraint(Sketcher.Constraint("Equal", 22, 24))
sketch1.addConstraint(Sketcher.Constraint("Equal", 24, 26))
sketch1.addConstraint(Sketcher.Constraint("Equal", 26, 28))
sketch1.addConstraint(Sketcher.Constraint("Equal", 28, 32))
sketch1.addConstraint(Sketcher.Constraint("Equal", 32, 34))
sketch1.addConstraint(Sketcher.Constraint("Equal", 34, 36))
sketch1.addConstraint(Sketcher.Constraint("Equal", 36, 38))
sketch1.addConstraint(Sketcher.Constraint("Equal", 38, 40))
sketch1.addConstraint(Sketcher.Constraint("Equal", 40, 42))
sketch1.addConstraint(Sketcher.Constraint("Equal", 42, 44))
sketch1.addConstraint(Sketcher.Constraint("Equal", 14, 46))
sketch1.addConstraint(Sketcher.Constraint("Diameter", 88, Q("20 mm")))
sketch1.addConstraint(Sketcher.Constraint("DistanceX", 17, 1, 17, 2, Q("6.2 mm")))
sketch1.addConstraint(Sketcher.Constraint("DistanceX", -1, 1, 17, 2, Q("200 mm")))
sketch1.addConstraint(Sketcher.Constraint("DistanceY", 46, 2, -1, 1, Q("80 mm")))
sketch1.addConstraint(Sketcher.Constraint("DistanceX", 47, 2, 47, 1, Q("4.11 mm")))
sketch1.addConstraint(Sketcher.Constraint("DistanceX", 1, 1, 1, 2, Q("165.002 mm")))
sketch1.addConstraint(Sketcher.Constraint("DistanceY", 88, 3, -1, 1, Q("37.836428 mm")))
sketch1.addConstraint(Sketcher.Constraint("DistanceX", -1, 1, 88, 3, Q("41.811197 mm")))
pad1 = doc.addObject("PartDesign::Pad", "Pad")
body.addObject(pad1)
pad1.Profile = sketch1
pad1.Length = 6.2
pad1.Reversed = True

# Sketch on XZ plane
sketch2 = doc.addObject("Sketcher::SketchObject", "Sketch001")
body.addObject(sketch2)
sketch2.AttachmentSupport = (doc.XZ_Plane, [""])
sketch2.MapMode = "FlatFace"
sketch2.AttachmentOffset = App.Placement(Vector(0, 0, -6.2), App.Rotation())
sketch2.addGeometry(Part.LineSegment(Vector(49.759943, -65.529792, 0), Vector(49.759943, -65.855433, 0)), False)
sketch2.addGeometry(Part.LineSegment(Vector(49.759943, -65.855433, 0), Vector(48.457379, -65.855433, 0)), False)
sketch2.addGeometry(Part.LineSegment(Vector(48.457379, -65.855433, 0), Vector(48.131738, -64.267933, 0)), False)
sketch2.addGeometry(Part.BSplineCurve([Vector(48.831357, -64.430753, 0), Vector(48.806747, -64.430227, 0), Vector(48.755934, -64.429139, 0), Vector(48.67799, -64.421132, 0), Vector(48.596083, -64.408215, 0), Vector(48.510526, -64.390448, 0), Vector(48.421063, -64.367197, 0), Vector(48.327883, -64.339334, 0), Vector(48.230789, -64.306022, 0), Vector(48.165368, -64.280865, 0), Vector(48.131738, -64.267933, 0)], [4, 1, 1, 1, 1, 1, 1, 1, 4], [0, 0.000073822, 0.000152423, 0.000234822, 0.000322511, 0.00041445, 0.000512043, 0.000614219, 0.000722306], False, 3, [1, 1, 1, 1, 1, 1, 1, 1, 1, 1, 1], False), False)
sketch2.addGeometry(Part.BSplineCurve([Vector(49.597122, -63.729862, 0), Vector(49.596525, -63.755331, 0), Vector(49.595356, -63.805182, 0), Vector(49.585803, -63.878116, 0), Vector(49.569187, -63.947125, 0), Vector(49.546124, -64.012543, 0), Vector(49.516842, -64.074431, 0), Vector(49.481058, -64.132854, 0), Vector(49.438102, -64.187041, 0), Vector(49.389033, -64.237018, 0), Vector(49.335277, -64.283141, 0), Vector(49.275911, -64.322461, 0), Vector(49.212175, -64.355539, 0), Vector(49.144838, -64.384085, 0), Vector(49.072298, -64.404587, 0), Vector(48.995993, -64.419979, 0), Vector(48.915097, -64.428883, 0), Vector(48.859787, -64.430118, 0), Vector(48.831357, -64.430753, 0)], [4, 1, 1, 1, 1, 1, 1, 1, 1, 1, 1, 1, 1, 1, 1, 1, 4], [0, 0.000076388, 0.000149519, 0.000220172, 0.000288967, 0.000357247, 0.000425206, 0.000494043, 0.000564207, 0.000635056, 0.000706145, 0.000777268, 0.000850264, 0.000925136, 0.001002969, 0.001083601, 0.001168886], False, 3, [1, 1, 1, 1, 1, 1, 1, 1, 1, 1, 1, 1, 1, 1, 1, 1, 1, 1, 1], False), False)
sketch2.addGeometry(Part.BSplineCurve([Vector(48.791288, -62.924664, 0), Vector(48.818465, -62.925408, 0), Vector(48.871976, -62.926874, 0), Vector(48.950726, -62.938158, 0), Vector(49.026756, -62.955537, 0), Vector(49.099316, -62.981545, 0), Vector(49.169675, -63.013154, 0), Vector(49.236055, -63.053717, 0), Vector(49.300374, -63.100398, 0), Vector(49.360633, -63.15388, 0), Vector(49.415823, -63.212817, 0), Vector(49.464588, -63.275843, 0), Vector(49.505207, -63.343078, 0), Vector(49.539437, -63.413357, 0), Vector(49.56543, -63.487451, 0), Vector(49.583973, -63.565013, 0), Vector(49.594861, -63.646234, 0), Vector(49.596359, -63.701632, 0), Vector(49.597122, -63.729862, 0)], [4, 1, 1, 1, 1, 1, 1, 1, 1, 1, 1, 1, 1, 1, 1, 1, 4], [0, 0.0000815, 0.000160473, 0.000238226, 0.000315066, 0.000391338, 0.000469218, 0.000547964, 0.000629516, 0.000710512, 0.000789892, 0.000868102, 0.000945761, 0.001024012, 0.00110315, 0.001184644, 0.001269321], False, 3, [1, 1, 1, 1, 1, 1, 1, 1, 1, 1, 1, 1, 1, 1, 1, 1, 1, 1, 1], False), False)
sketch2.addGeometry(Part.BSplineCurve([Vector(48.091033, -63.494536, 0), Vector(48.098044, -63.464258, 0), Vector(48.111519, -63.406064, 0), Vector(48.141097, -63.324302, 0), Vector(48.177261, -63.251441, 0), Vector(48.220264, -63.186517, 0), Vector(48.271562, -63.129903, 0), Vector(48.3301, -63.079451, 0), Vector(48.39573, -63.033934, 0), Vector(48.468658, -62.995995, 0), Vector(48.545595, -62.963639, 0), Vector(48.62612, -62.942092, 0), Vector(48.708039, -62.926942, 0), Vector(48.763446, -62.925426, 0), Vector(48.791288, -62.924664, 0)], [4, 1, 1, 1, 1, 1, 1, 1, 1, 1, 1, 1, 4], [0, 0.000093172, 0.000179081, 0.000260145, 0.000336703, 0.000411917, 0.000488562, 0.000568128, 0.000650923, 0.00073478, 0.000817953, 0.000900557, 0.000983994], False, 3, [1, 1, 1, 1, 1, 1, 1, 1, 1, 1, 1, 1, 1, 1, 1], False), False)
sketch2.addGeometry(Part.LineSegment(Vector(48.091033, -63.494536, 0), Vector(47.806097, -63.494536, 0)), False)
sketch2.addGeometry(Part.BSplineCurve([Vector(48.774752, -62.599023, 0), Vector(48.743116, -62.599649, 0), Vector(48.680876, -62.600882, 0), Vector(48.589689, -62.613781, 0), Vector(48.501955, -62.632254, 0), Vector(48.41838, -62.660045, 0), Vector(48.338215, -62.694868, 0), Vector(48.262539, -62.738879, 0), Vector(48.189418, -62.788753, 0), Vector(48.121825, -62.847609, 0), Vector(48.05909, -62.911939, 0), Vector(48.002932, -62.981751, 0), Vector(47.952918, -63.055891, 0), Vector(47.909849, -63.13472, 0), Vector(47.873111, -63.218031, 0), Vector(47.844251, -63.306135, 0), Vector(47.820957, -63.398573, 0), Vector(47.811102, -63.462212, 0), Vector(47.806097, -63.494536, 0)], [4, 1, 1, 1, 1, 1, 1, 1, 1, 1, 1, 1, 1, 1, 1, 1, 4], [0, 0.000094843, 0.000186593, 0.000275792, 0.000363484, 0.000450342, 0.000537514, 0.000625728, 0.000715478, 0.000805885, 0.000894984, 0.00098389, 0.001073836, 0.001164117, 0.001256635, 0.001351658, 0.001449737], False, 3, [1, 1, 1, 1, 1, 1, 1, 1, 1, 1, 1, 1, 1, 1, 1, 1, 1, 1, 1], False), False)
sketch2.addGeometry(Part.BSplineCurve([Vector(49.882058, -63.717778, 0), Vector(49.881455, -63.691904, 0), Vector(49.880256, -63.640506, 0), Vector(49.874162, -63.564175, 0), Vector(49.862427, -63.489461, 0), Vector(49.846672, -63.416352, 0), Vector(49.826223, -63.344987, 0), Vector(49.801468, -63.275163, 0), Vector(49.771173, -63.207314, 0), Vector(49.737943, -63.140797, 0), Vector(49.700527, -63.077117, 0), Vector(49.658999, -63.017564, 0), Vector(49.615125, -62.961245, 0), Vector(49.567916, -62.908763, 0), Vector(49.516933, -62.860464, 0), Vector(49.462795, -62.816061, 0), Vector(49.405933, -62.774803, 0), Vector(49.345467, -62.738365, 0), Vector(49.282745, -62.704834, 0), Vector(49.216861, -62.677326, 0), Vector(49.149314, -62.652733, 0), Vector(49.079133, -62.63313, 0), Vector(49.006477, -62.61777, 0), Vector(48.931225, -62.607337, 0), Vector(48.853772, -62.599739, 0), Vector(48.801272, -62.599263, 0), Vector(48.774752, -62.599023, 0)], [4, 1, 1, 1, 1, 1, 1, 1, 1, 1, 1, 1, 1, 1, 1, 1, 1, 1, 1, 1, 1, 1, 1, 1, 4], [0, 0.000077636, 0.000154223, 0.000229512, 0.000304362, 0.000378447, 0.000452077, 0.000526407, 0.000601214, 0.00067506, 0.000747747, 0.00081887, 0.000889121, 0.000959302, 0.001029336, 0.001099058, 0.00116985, 0.001240974, 0.00131221, 0.00138383, 0.001456517, 0.001530612, 0.001606437, 0.001684346, 0.001763871], False, 3, [1, 1, 1, 1, 1, 1, 1, 1, 1, 1, 1, 1, 1, 1, 1, 1, 1, 1, 1, 1, 1, 1, 1, 1, 1, 1, 1], False), False)
sketch2.addGeometry(Part.BSplineCurve([Vector(48.882875, -64.756395, 0), Vector(48.918329, -64.755627, 0), Vector(48.988042, -64.754118, 0), Vector(49.09004, -64.73963, 0), Vector(49.187406, -64.716824, 0), Vector(49.279937, -64.684965, 0), Vector(49.367803, -64.644225, 0), Vector(49.450197, -64.593334, 0), Vector(49.528354, -64.533886, 0), Vector(49.600874, -64.465538, 0), Vector(49.666663, -64.390316, 0), Vector(49.724508, -64.309437, 0), Vector(49.773642, -64.223687, 0), Vector(49.813157, -64.132246, 0), Vector(49.844712, -64.036126, 0), Vector(49.865714, -63.934315, 0), Vector(49.879699, -63.827773, 0), Vector(49.881262, -63.754925, 0), Vector(49.882058, -63.717778, 0)], [4, 1, 1, 1, 1, 1, 1, 1, 1, 1, 1, 1, 1, 1, 1, 1, 4], [0, 0.000106308, 0.000209029, 0.000308378, 0.000405929, 0.000502102, 0.000598312, 0.00069588, 0.000796219, 0.000896736, 0.000995218, 0.001094066, 0.001192613, 0.001293582, 0.001396995, 0.001504047, 0.001615439], False, 3, [1, 1, 1, 1, 1, 1, 1, 1, 1, 1, 1, 1, 1, 1, 1, 1, 1, 1, 1], False), False)
sketch2.addGeometry(Part.BSplineCurve([Vector(48.508896, -64.694701, 0), Vector(48.542511, -64.703981, 0), Vector(48.607635, -64.72196, 0), Vector(48.703756, -64.741923, 0), Vector(48.795007, -64.753956, 0), Vector(48.854221, -64.755599, 0), Vector(48.882875, -64.756395, 0)], [4, 1, 1, 1, 4], [0, 0.000104595, 0.000202637, 0.000294305, 0.000380252], False, 3, [1, 1, 1, 1, 1, 1, 1], False), False)
sketch2.addGeometry(Part.LineSegment(Vector(48.508896, -64.694701, 0), Vector(48.679985, -65.529792, 0)), False)
sketch2.addGeometry(Part.LineSegment(Vector(48.679985, -65.529792, 0), Vector(49.759943, -65.529792, 0)), False)
sketch2.addGeometry(Part.LineSegment(Vector(51.998725, -65.936843, 0), Vector(51.940847, -65.936843, 0)), False)
sketch2.addGeometry(Part.LineSegment(Vector(51.940847, -65.936843, 0), Vector(50.207699, -63.413125, 0)), False)
sketch2.addGeometry(Part.LineSegment(Vector(50.207699, -63.413125, 0), Vector(51.713789, -63.413125, 0)), False)
sketch2.addGeometry(Part.LineSegment(Vector(51.713789, -63.413125, 0), Vector(51.713789, -62.680433, 0)), False)
sketch2.addGeometry(Part.LineSegment(Vector(51.713789, -62.680433, 0), Vector(51.998725, -62.680433, 0)), False)
sketch2.addGeometry(Part.LineSegment(Vector(51.998725, -62.680433, 0), Vector(51.998725, -63.413125, 0)), False)
sketch2.addGeometry(Part.LineSegment(Vector(51.998725, -63.413125, 0), Vector(52.365071, -63.413125, 0)), False)
sketch2.addGeometry(Part.LineSegment(Vector(52.365071, -63.413125, 0), Vector(52.365071, -63.738766, 0)), False)
sketch2.addGeometry(Part.LineSegment(Vector(52.365071, -63.738766, 0), Vector(51.998725, -63.738766, 0)), False)
sketch2.addGeometry(Part.LineSegment(Vector(51.998725, -63.738766, 0), Vector(51.998725, -65.936843, 0)), False)
sketch2.addGeometry(Part.LineSegment(Vector(51.713789, -63.738766, 0), Vector(50.767395, -63.738766, 0)), False)
sketch2.addGeometry(Part.LineSegment(Vector(50.767395, -63.738766, 0), Vector(51.713789, -65.117653, 0)), False)
sketch2.addGeometry(Part.LineSegment(Vector(51.713789, -65.117653, 0), Vector(51.713789, -63.738766, 0)), False)
sketch2.addConstraint(Sketcher.Constraint("Block", 3))
sketch2.addConstraint(Sketcher.Constraint("Block", 4))
sketch2.addConstraint(Sketcher.Constraint("Block", 5))
sketch2.addConstraint(Sketcher.Constraint("Block", 6))
sketch2.addConstraint(Sketcher.Constraint("Block", 8))
sketch2.addConstraint(Sketcher.Constraint("Block", 9))
sketch2.addConstraint(Sketcher.Constraint("Block", 10))
sketch2.addConstraint(Sketcher.Constraint("Block", 11))
sketch2.addConstraint(Sketcher.Constraint("Coincident", 0, 2, 1, 1))
sketch2.addConstraint(Sketcher.Constraint("Coincident", 1, 2, 2, 1))
sketch2.addConstraint(Sketcher.Constraint("Coincident", 2, 2, 3, 2))
sketch2.addConstraint(Sketcher.Constraint("Coincident", 6, 1, 7, 1))
sketch2.addConstraint(Sketcher.Constraint("Coincident", 7, 2, 8, 2))
sketch2.addConstraint(Sketcher.Constraint("Coincident", 11, 1, 12, 1))
sketch2.addConstraint(Sketcher.Constraint("Coincident", 12, 2, 13, 1))
sketch2.addConstraint(Sketcher.Constraint("Coincident", 13, 2, 0, 1))
sketch2.addConstraint(Sketcher.Constraint("Coincident", 14, 2, 15, 1))
sketch2.addConstraint(Sketcher.Constraint("Coincident", 15, 2, 16, 1))
sketch2.addConstraint(Sketcher.Constraint("Coincident", 16, 2, 17, 1))
sketch2.addConstraint(Sketcher.Constraint("Coincident", 17, 2, 18, 1))
sketch2.addConstraint(Sketcher.Constraint("Coincident", 18, 2, 19, 1))
sketch2.addConstraint(Sketcher.Constraint("Coincident", 19, 2, 20, 1))
sketch2.addConstraint(Sketcher.Constraint("Coincident", 20, 2, 21, 1))
sketch2.addConstraint(Sketcher.Constraint("Coincident", 21, 2, 22, 1))
sketch2.addConstraint(Sketcher.Constraint("Coincident", 22, 2, 23, 1))
sketch2.addConstraint(Sketcher.Constraint("Coincident", 23, 2, 14, 1))
sketch2.addConstraint(Sketcher.Constraint("Coincident", 24, 2, 25, 1))
sketch2.addConstraint(Sketcher.Constraint("Coincident", 25, 2, 26, 1))
sketch2.addConstraint(Sketcher.Constraint("Coincident", 26, 2, 24, 1))
sketch2.addConstraint(Sketcher.Constraint("Vertical", 0))
sketch2.addConstraint(Sketcher.Constraint("Horizontal", 1))
sketch2.addConstraint(Sketcher.Constraint("Horizontal", 13))
sketch2.addConstraint(Sketcher.Constraint("Horizontal", 14))
sketch2.addConstraint(Sketcher.Constraint("Horizontal", 16))
sketch2.addConstraint(Sketcher.Constraint("Vertical", 17))
sketch2.addConstraint(Sketcher.Constraint("Horizontal", 18))
sketch2.addConstraint(Sketcher.Constraint("Vertical", 19))
sketch2.addConstraint(Sketcher.Constraint("Horizontal", 20))
sketch2.addConstraint(Sketcher.Constraint("Vertical", 21))
sketch2.addConstraint(Sketcher.Constraint("Horizontal", 22))
sketch2.addConstraint(Sketcher.Constraint("Vertical", 23))
sketch2.addConstraint(Sketcher.Constraint("Horizontal", 24))
sketch2.addConstraint(Sketcher.Constraint("Vertical", 26))
sketch2.addConstraint(Sketcher.Constraint("DistanceY", 0, 2, 17, 2, Q("3.175 mm")))
sketch2.addConstraint(Sketcher.Constraint("DistanceX", 16, 1, 16, 2, Q("1.50609 mm")))
sketch2.addConstraint(Sketcher.Constraint("DistanceY", 0, 2, 0, 1, Q("0.325641 mm")))
sketch2.addConstraint(Sketcher.Constraint("DistanceY", 21, 2, 21, 1, Q("0.325641 mm")))
sketch2.addConstraint(Sketcher.Constraint("DistanceX", -1, 1, 15, 2, Q("50.207699 mm")))
sketch2.addConstraint(Sketcher.Constraint("DistanceY", 1, 2, 2, 2, Q("1.5875 mm")))
sketch2.addConstraint(Sketcher.Constraint("Distance", 15, Q("3.061528 mm")))
sketch2.addConstraint(Sketcher.Constraint("Distance", 25, Q("1.67242 mm")))
sketch2.addConstraint(Sketcher.Constraint("DistanceX", 1, 2, 1, 1, Q("1.302564 mm")))
sketch2.addConstraint(Sketcher.Constraint("DistanceX", 13, 1, 13, 2, Q("1.079958 mm")))
sketch2.addConstraint(Sketcher.Constraint("DistanceX", 14, 2, 14, 1, Q("0.057878 mm")))
sketch2.addConstraint(Sketcher.Constraint("DistanceX", 18, 1, 18, 2, Q("0.284936 mm")))
sketch2.addConstraint(Sketcher.Constraint("DistanceX", 20, 1, 20, 2, Q("0.366346 mm")))
sketch2.addConstraint(Sketcher.Constraint("DistanceX", 22, 2, 22, 1, Q("0.366346 mm")))
sketch2.addConstraint(Sketcher.Constraint("DistanceX", 24, 2, 24, 1, Q("0.946394 mm")))
sketch2.addConstraint(Sketcher.Constraint("DistanceY", 17, 1, 17, 2, Q("0.732692 mm")))
sketch2.addConstraint(Sketcher.Constraint("DistanceY", 19, 2, 19, 1, Q("0.732692 mm")))
sketch2.addConstraint(Sketcher.Constraint("DistanceX", -1, 1, 1, 2, Q("48.457379 mm")))
sketch2.addConstraint(Sketcher.Constraint("DistanceX", -1, 1, 25, 2, Q("51.713789 mm")))
sketch2.addConstraint(Sketcher.Constraint("DistanceY", 24, 2, 15, 2, Q("0.325641 mm")))
pocket1 = doc.addObject("PartDesign::Pocket", "Pocket")
body.addObject(pocket1)
pocket1.Profile = sketch2
pocket1.Length = 1
pocket1.Reversed = True

doc.recompute()
